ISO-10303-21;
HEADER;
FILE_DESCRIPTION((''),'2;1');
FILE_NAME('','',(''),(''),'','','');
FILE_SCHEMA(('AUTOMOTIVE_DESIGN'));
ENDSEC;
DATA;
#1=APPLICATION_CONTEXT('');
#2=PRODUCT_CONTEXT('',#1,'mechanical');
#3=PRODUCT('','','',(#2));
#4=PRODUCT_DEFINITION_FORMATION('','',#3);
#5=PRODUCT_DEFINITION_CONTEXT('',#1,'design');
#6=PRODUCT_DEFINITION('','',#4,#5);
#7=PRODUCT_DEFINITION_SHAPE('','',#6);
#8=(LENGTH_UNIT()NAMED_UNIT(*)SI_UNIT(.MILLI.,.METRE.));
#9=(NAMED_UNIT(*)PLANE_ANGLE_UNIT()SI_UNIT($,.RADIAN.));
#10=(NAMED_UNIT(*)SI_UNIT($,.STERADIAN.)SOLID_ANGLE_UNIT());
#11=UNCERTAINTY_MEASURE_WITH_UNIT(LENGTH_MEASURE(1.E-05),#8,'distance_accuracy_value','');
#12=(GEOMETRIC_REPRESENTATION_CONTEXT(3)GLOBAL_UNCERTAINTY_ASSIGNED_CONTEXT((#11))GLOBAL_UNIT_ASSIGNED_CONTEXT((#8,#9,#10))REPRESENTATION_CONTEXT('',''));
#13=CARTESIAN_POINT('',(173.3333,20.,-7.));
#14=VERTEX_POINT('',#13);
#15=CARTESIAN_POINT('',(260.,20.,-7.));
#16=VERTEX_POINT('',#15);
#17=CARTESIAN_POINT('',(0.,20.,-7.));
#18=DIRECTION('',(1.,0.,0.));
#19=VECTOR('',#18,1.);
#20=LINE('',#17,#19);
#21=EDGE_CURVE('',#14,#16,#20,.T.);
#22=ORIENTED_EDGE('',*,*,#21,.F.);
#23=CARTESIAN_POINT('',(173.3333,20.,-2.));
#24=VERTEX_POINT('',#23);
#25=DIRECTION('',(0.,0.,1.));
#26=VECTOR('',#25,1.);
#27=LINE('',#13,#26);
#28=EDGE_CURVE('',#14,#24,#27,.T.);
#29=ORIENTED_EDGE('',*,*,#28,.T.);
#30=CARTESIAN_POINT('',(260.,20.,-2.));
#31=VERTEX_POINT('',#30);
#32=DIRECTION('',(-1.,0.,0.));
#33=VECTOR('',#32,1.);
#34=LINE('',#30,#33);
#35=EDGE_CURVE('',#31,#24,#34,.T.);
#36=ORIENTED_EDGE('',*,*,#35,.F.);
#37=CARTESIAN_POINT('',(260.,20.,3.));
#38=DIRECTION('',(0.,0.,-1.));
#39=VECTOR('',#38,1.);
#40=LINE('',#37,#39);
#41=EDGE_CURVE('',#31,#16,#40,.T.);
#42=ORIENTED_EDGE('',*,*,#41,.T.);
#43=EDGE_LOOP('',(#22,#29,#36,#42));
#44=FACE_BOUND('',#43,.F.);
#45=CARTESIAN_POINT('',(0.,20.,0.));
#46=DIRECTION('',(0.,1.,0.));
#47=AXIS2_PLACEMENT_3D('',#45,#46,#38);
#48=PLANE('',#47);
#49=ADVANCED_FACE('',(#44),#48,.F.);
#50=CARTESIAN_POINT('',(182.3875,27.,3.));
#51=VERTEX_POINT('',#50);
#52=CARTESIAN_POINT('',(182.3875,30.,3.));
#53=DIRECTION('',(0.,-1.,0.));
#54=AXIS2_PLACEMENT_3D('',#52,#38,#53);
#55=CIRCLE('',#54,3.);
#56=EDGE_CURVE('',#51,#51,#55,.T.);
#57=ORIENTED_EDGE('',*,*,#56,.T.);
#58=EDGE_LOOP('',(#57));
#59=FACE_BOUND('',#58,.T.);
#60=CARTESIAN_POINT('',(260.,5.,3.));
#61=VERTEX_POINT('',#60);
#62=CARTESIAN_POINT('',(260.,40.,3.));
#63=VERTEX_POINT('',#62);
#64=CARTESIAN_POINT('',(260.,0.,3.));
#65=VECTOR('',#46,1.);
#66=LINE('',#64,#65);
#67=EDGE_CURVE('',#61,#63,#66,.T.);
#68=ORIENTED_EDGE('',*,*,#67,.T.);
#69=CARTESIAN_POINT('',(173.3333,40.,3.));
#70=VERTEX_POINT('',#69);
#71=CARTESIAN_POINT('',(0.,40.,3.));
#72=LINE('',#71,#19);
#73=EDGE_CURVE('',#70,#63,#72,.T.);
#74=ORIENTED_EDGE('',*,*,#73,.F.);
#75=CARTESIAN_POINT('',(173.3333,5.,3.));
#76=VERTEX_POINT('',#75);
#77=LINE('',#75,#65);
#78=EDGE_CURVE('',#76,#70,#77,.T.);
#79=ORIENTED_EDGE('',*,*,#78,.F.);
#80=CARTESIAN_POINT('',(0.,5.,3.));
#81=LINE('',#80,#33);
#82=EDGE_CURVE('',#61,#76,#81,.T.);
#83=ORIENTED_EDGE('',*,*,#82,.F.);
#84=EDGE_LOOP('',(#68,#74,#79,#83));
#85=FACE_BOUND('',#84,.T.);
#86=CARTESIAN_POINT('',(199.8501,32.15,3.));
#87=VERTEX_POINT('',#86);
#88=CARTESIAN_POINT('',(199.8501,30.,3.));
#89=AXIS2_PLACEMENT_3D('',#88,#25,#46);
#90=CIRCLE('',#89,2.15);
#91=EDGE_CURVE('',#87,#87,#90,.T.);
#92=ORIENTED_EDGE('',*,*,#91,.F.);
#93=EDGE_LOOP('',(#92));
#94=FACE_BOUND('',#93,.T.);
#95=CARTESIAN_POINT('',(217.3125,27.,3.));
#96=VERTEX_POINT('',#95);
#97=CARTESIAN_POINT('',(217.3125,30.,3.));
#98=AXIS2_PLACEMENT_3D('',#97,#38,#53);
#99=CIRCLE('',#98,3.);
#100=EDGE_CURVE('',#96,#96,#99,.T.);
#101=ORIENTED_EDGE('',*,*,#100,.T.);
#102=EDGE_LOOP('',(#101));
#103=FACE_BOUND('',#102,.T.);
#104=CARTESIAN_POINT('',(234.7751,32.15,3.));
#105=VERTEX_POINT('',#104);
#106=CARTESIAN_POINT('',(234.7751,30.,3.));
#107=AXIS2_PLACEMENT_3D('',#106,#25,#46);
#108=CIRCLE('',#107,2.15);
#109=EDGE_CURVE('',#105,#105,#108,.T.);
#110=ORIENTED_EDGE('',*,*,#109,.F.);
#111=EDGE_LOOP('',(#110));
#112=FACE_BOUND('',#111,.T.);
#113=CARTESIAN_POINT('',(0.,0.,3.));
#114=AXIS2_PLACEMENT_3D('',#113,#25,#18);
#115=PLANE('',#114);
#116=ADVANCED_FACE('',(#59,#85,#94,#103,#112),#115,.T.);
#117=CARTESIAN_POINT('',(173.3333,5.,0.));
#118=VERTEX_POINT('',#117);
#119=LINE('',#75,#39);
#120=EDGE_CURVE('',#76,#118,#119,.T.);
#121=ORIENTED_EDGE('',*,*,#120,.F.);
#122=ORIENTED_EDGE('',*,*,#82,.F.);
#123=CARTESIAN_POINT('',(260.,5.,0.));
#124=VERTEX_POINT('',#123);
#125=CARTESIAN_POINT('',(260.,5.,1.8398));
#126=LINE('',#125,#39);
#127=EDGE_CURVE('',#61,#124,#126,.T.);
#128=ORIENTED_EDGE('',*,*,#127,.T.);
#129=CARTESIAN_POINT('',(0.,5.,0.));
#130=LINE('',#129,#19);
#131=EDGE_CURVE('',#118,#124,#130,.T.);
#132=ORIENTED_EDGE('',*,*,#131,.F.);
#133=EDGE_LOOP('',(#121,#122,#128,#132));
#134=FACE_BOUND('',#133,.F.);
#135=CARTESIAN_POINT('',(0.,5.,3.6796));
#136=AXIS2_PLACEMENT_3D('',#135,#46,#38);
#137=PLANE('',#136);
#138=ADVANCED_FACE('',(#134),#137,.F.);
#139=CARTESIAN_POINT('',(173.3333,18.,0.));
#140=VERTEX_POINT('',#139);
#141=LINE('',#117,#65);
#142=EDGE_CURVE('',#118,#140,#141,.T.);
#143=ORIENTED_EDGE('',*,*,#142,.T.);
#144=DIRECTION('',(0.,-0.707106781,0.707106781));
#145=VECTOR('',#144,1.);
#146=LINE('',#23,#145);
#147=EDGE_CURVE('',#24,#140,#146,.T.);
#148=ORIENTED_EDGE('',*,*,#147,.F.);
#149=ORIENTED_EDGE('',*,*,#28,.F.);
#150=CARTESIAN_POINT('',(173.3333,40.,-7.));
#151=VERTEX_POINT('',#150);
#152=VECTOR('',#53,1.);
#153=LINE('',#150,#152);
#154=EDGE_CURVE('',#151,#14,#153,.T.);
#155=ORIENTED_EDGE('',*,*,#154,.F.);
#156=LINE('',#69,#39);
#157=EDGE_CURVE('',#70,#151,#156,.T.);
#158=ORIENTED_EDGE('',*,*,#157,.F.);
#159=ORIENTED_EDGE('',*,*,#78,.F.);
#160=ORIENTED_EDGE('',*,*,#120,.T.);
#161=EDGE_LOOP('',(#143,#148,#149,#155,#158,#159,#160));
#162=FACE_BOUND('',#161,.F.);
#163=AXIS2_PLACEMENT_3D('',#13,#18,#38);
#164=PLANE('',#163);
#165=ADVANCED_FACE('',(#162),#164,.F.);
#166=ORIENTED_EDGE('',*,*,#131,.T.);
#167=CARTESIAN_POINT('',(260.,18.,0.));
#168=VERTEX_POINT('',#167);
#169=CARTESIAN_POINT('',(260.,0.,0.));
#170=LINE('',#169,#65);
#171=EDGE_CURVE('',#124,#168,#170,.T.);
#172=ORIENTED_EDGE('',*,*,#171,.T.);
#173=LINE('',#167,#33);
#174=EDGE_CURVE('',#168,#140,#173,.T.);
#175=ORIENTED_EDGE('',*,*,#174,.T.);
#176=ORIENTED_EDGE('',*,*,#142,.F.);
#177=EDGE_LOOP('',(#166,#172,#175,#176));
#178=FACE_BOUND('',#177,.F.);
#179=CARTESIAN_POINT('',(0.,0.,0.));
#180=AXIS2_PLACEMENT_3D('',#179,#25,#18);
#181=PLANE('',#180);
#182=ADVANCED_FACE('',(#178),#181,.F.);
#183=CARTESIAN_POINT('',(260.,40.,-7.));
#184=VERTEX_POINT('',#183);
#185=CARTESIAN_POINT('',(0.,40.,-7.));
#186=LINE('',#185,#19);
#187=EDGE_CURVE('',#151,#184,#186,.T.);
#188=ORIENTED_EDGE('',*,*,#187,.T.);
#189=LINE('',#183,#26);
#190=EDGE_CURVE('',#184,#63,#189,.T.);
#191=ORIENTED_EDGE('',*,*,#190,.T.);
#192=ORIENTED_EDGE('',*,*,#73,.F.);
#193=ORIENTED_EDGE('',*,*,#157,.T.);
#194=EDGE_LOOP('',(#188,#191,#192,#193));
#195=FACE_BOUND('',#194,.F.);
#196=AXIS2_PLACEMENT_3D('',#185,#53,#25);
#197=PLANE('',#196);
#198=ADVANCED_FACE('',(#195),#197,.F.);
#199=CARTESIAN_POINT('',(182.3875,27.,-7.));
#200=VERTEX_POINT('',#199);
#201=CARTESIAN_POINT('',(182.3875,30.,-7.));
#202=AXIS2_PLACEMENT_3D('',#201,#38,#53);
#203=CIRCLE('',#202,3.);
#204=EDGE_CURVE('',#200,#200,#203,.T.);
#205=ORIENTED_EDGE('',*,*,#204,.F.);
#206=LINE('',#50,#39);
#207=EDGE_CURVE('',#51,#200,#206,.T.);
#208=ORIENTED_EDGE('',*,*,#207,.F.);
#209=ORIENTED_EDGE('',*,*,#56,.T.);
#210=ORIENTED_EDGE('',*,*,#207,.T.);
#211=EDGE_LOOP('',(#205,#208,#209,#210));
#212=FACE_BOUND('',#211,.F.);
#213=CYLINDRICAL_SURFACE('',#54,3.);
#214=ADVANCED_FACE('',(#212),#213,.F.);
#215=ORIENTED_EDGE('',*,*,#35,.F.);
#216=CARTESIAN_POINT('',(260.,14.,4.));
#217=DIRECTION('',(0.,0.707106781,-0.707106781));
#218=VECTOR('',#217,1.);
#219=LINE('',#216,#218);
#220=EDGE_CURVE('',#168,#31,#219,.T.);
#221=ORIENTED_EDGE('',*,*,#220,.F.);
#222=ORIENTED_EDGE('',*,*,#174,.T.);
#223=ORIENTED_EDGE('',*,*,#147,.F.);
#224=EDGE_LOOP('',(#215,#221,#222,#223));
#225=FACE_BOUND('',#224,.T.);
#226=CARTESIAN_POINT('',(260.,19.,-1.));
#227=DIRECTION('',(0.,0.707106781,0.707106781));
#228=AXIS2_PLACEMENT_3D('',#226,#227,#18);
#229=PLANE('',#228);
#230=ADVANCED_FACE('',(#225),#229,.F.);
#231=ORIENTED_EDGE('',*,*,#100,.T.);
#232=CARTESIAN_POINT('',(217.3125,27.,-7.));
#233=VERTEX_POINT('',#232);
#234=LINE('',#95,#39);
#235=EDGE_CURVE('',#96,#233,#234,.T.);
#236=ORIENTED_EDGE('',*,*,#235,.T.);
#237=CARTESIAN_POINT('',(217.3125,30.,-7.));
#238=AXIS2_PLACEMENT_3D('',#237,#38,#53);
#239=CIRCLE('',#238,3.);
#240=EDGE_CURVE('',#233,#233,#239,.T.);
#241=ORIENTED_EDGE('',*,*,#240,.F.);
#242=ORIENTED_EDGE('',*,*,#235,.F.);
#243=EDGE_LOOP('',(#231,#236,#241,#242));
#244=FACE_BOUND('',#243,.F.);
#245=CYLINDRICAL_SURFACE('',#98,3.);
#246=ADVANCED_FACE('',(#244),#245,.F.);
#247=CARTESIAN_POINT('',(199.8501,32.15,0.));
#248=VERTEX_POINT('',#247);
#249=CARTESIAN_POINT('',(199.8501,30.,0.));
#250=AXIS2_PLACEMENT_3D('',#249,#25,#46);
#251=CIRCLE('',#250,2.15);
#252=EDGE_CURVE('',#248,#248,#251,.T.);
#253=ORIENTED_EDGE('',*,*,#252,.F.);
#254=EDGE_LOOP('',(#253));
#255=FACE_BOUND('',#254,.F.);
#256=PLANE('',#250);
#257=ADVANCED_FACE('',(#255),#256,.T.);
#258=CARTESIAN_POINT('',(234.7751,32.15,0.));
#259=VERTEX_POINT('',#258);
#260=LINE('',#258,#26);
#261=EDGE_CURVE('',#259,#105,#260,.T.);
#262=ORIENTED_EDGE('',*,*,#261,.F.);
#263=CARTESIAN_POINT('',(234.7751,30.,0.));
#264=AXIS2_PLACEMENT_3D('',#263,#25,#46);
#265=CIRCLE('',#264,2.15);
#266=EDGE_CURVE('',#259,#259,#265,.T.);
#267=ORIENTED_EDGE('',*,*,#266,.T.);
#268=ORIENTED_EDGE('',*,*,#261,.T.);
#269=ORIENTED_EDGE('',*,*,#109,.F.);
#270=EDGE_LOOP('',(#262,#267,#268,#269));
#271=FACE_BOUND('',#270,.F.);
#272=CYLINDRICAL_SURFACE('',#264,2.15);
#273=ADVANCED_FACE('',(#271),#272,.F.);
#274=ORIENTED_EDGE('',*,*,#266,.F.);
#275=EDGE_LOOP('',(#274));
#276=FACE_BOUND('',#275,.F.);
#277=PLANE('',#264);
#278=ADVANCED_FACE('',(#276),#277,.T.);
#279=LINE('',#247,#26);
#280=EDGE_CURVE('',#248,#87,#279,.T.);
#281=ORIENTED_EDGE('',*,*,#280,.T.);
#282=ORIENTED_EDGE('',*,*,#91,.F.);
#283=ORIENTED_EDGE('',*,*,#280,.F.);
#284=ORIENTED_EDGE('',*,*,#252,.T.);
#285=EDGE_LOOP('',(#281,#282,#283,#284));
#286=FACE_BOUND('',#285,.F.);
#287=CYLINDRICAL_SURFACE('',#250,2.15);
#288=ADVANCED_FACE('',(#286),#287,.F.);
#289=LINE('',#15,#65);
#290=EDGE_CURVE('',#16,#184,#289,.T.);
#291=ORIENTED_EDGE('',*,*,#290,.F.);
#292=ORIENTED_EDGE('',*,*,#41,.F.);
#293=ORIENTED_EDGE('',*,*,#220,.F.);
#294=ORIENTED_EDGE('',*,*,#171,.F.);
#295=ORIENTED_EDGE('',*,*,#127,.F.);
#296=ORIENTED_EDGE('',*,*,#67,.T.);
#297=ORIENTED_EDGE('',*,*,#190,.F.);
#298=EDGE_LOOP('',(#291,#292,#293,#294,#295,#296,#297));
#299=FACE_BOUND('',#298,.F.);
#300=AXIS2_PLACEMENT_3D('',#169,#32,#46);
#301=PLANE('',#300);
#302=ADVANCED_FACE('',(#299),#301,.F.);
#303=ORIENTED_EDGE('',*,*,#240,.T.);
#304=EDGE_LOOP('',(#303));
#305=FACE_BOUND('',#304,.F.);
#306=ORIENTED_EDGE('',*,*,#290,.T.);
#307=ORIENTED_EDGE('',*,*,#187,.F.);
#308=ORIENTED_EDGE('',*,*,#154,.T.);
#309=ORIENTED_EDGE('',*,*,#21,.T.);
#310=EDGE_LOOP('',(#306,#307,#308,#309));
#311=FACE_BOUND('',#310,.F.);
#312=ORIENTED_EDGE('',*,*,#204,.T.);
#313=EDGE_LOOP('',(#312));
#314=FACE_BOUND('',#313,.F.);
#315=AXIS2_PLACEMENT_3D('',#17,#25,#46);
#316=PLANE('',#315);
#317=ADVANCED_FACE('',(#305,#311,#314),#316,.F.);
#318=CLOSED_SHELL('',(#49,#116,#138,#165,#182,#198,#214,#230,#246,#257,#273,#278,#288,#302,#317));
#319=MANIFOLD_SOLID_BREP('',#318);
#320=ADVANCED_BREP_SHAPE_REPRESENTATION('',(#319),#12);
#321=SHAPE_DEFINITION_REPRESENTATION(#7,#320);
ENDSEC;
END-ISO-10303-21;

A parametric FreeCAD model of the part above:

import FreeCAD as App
import Part
import Sketcher

V = App.Vector


def edges_at(feature, points):
    """Names of the edges that pass closest to the given points."""
    edges = feature.Shape.Edges
    near = lambda p: min(range(len(edges)), key=lambda i: edges[i].distToShape(Part.Vertex(*p))[0])
    return sorted({f"Edge{near(p) + 1}" for p in points})


def add_polygon(sketch, points):
    """Adds a closed chain of lines whose ends are joined by coincident constraints."""
    first, n = sketch.GeometryCount, len(points)
    for a, b in zip(points, points[1:] + points[:1]):
        sketch.addGeometry(Part.LineSegment(App.Vector(*a, 0), App.Vector(*b, 0)), False)
    for i in range(n):
        sketch.addConstraint(Sketcher.Constraint("Coincident", first + i, 2, first + (i + 1) % n, 1))

doc = App.newDocument("Part")
body = doc.addObject("PartDesign::Body", "Body")

# Sketch on XY plane
sketch1 = doc.addObject("Sketcher::SketchObject", "Sketch")
body.addObject(sketch1)
sketch1.AttachmentSupport = (doc.XY_Plane, [""])
sketch1.MapMode = "FlatFace"
add_polygon(sketch1, [(0, 20), (0, 0), (260, 0), (260, 20)])  # lines 0-3
sketch1.addConstraint([
    Sketcher.Constraint("Vertical", 0),
    Sketcher.Constraint("Horizontal", 1),
    Sketcher.Constraint("Vertical", 2),
    Sketcher.Constraint("Horizontal", 3),
    Sketcher.Constraint("Coincident", 0, 2, -1, 1),
    Sketcher.Constraint("DistanceX", 1, 1, 1, 2, 260.0),
    Sketcher.Constraint("DistanceY", 0, 2, 0, 1, 20.0),
])
pad1 = doc.addObject("PartDesign::Pad", "Pad")
body.addObject(pad1)
pad1.Profile = sketch1
pad1.Length = 3

# Sketch on YZ plane
sketch2 = doc.addObject("Sketcher::SketchObject", "Sketch001")
body.addObject(sketch2)
sketch2.AttachmentSupport = (doc.YZ_Plane, [""])
sketch2.MapMode = "FlatFace"
add_polygon(sketch2, [(20, -7), (20, 3), (40, 3), (40, -7)])  # lines 0-3
sketch2.addConstraint([
    Sketcher.Constraint("Vertical", 0),
    Sketcher.Constraint("Horizontal", 1),
    Sketcher.Constraint("Vertical", 2),
    Sketcher.Constraint("Horizontal", 3),
    Sketcher.Constraint("DistanceX", 1, 1, 1, 2, 20.0),
    Sketcher.Constraint("DistanceY", 0, 1, 0, 2, 10.0),
    Sketcher.Constraint("DistanceX", -1, 1, 0, 2, 20.0),
    Sketcher.Constraint("DistanceY", -1, 1, 0, 2, 3.0),
])
pad2 = doc.addObject("PartDesign::Pad", "Pad001")
body.addObject(pad2)
pad2.Profile = sketch2
pad2.Length = 260

# Sketch on XY plane
sketch3 = doc.addObject("Sketcher::SketchObject", "Sketch002")
body.addObject(sketch3)
sketch3.AttachmentSupport = (doc.XY_Plane, [""])
sketch3.MapMode = "FlatFace"
sketch3.AttachmentOffset = App.Placement(V(0, 0, 3), App.Rotation())
sketch3.addGeometry([
    Part.Circle(V(42.6875, 30, 0), V(0, 0, 1), 3),  # 0
    Part.Circle(V(77.6125, 30, 0), V(0, 0, 1), 3),  # 1
    Part.Circle(V(182.3875, 30, 0), V(0, 0, 1), 3),  # 2
    Part.Circle(V(217.3125, 30, 0), V(0, 0, 1), 3),  # 3
    Part.Circle(V(112.5375, 30, 0), V(0, 0, 1), 3),  # 4
    Part.Circle(V(147.4625, 30, 0), V(0, 0, 1), 3),  # 5
], False)
sketch3.addConstraint([
    Sketcher.Constraint("Equal", 0, 1),
    Sketcher.Constraint("Equal", 1, 2),
    Sketcher.Constraint("Equal", 2, 3),
    Sketcher.Constraint("Equal", 3, 4),
    Sketcher.Constraint("Equal", 4, 5),
    Sketcher.Constraint("Horizontal", 0, 3, 1, 3),
    Sketcher.Constraint("Horizontal", 1, 3, 2, 3),
    Sketcher.Constraint("Horizontal", 2, 3, 3, 3),
    Sketcher.Constraint("Horizontal", 3, 3, 4, 3),
    Sketcher.Constraint("Horizontal", 4, 3, 5, 3),
    Sketcher.Constraint("Diameter", 0, 6.0),
    Sketcher.Constraint("DistanceY", -1, 1, 0, 3, 30.0),
    Sketcher.Constraint("DistanceX", 0, 3, 2, 3, 139.7),
    Sketcher.Constraint("DistanceX", 1, 3, 3, 3, 139.7),
    Sketcher.Constraint("DistanceX", 0, 3, 4, 3, 69.85),
    Sketcher.Constraint("DistanceX", 5, 3, 3, 3, 69.85),
    Sketcher.Constraint("DistanceX", 0, 3, 1, 3, 34.925),
    Sketcher.Constraint("DistanceX", -1, 1, 0, 3, 42.6875),
])
doc.recompute()
hole = doc.addObject("PartDesign::Hole", "Hole")
body.addObject(hole)
hole.Profile = sketch3
hole.ThreadType = "None"
hole.Diameter = 6
hole.DepthType = "ThroughAll"

# Sketch on XY plane
sketch4 = doc.addObject("Sketcher::SketchObject", "Sketch003")
body.addObject(sketch4)
sketch4.AttachmentSupport = (doc.XY_Plane, [""])
sketch4.MapMode = "FlatFace"
sketch4.addGeometry(Part.Circle(V(25.2251, 30, 0), V(0, 0, 1), 2.15), False)
sketch4.addConstraint([
    Sketcher.Constraint("Diameter", 0, 4.3),
    Sketcher.Constraint("DistanceY", -1, 1, 0, 3, 30.0),
    Sketcher.Constraint("DistanceX", -1, 1, 0, 3, 25.225),
])
doc.recompute()
hole2 = doc.addObject("PartDesign::Hole", "Hole001")
body.addObject(hole2)
hole2.Profile = sketch4
hole2.ThreadType = "None"
hole2.Diameter = 4.3
hole2.DepthType = "Dimension"
hole2.Depth = 6
hole2.DrillPoint = "Flat"
hole2.Reversed = True
doc.recompute()

linearpattern = doc.addObject("PartDesign::LinearPattern", "LinearPattern")
body.addObject(linearpattern)
linearpattern.Originals = [hole2]
linearpattern.Direction = (doc.X_Axis, [""])
linearpattern.Mode = "offset"
linearpattern.Offset = 34.925
linearpattern.Occurrences = 7
body.Tip = linearpattern
doc.recompute()

chamfer = doc.addObject("PartDesign::Chamfer", "Chamfer")
body.addObject(chamfer)
chamfer.Base = (linearpattern, edges_at(linearpattern, [(130, 20, 0)]))
chamfer.Size = 2

# Sketch on YZ plane
sketch5 = doc.addObject("Sketcher::SketchObject", "Sketch004")
body.addObject(sketch5)
sketch5.AttachmentSupport = (doc.YZ_Plane, [""])
sketch5.MapMode = "FlatFace"
add_polygon(sketch5, [(5, 0), (0, 0), (0, 3.6796), (5, 3.6796)])  # lines 0-3
sketch5.addConstraint([
    Sketcher.Constraint("Horizontal", 0),
    Sketcher.Constraint("Vertical", 1),
    Sketcher.Constraint("Horizontal", 2),
    Sketcher.Constraint("Vertical", 3),
    Sketcher.Constraint("Coincident", 0, 2, -1, 1),
    Sketcher.Constraint("DistanceX", 0, 2, 0, 1, 5.0),
    Sketcher.Constraint("DistanceY", 1, 1, 1, 2, 3.6796),
])
pocket1 = doc.addObject("PartDesign::Pocket", "Pocket")
body.addObject(pocket1)
pocket1.Profile = sketch5
pocket1.Type = "ThroughAll"
pocket1.Reversed = True

# Sketch on YZ plane
sketch6 = doc.addObject("Sketcher::SketchObject", "Sketch005")
body.addObject(sketch6)
sketch6.AttachmentSupport = (doc.YZ_Plane, [""])
sketch6.MapMode = "FlatFace"
sketch6.AttachmentOffset = App.Placement(V(0, 0, 173.3333), App.Rotation())
add_polygon(sketch6, [(40, 3), (5, 3), (5, 0), (18, 0), (20, -2), (20, -7), (40, -7)])  # lines 0-6
sketch6.addConstraint([
    Sketcher.Constraint("Horizontal", 0),
    Sketcher.Constraint("Vertical", 1),
    Sketcher.Constraint("Horizontal", 2),
    Sketcher.Constraint("Vertical", 4),
    Sketcher.Constraint("Horizontal", 5),
    Sketcher.Constraint("Vertical", 6),
    Sketcher.Constraint("PointOnObject", 1, 2, -1),
    Sketcher.Constraint("DistanceX", 0, 2, 0, 1, 35.0),
    Sketcher.Constraint("DistanceX", 2, 1, 2, 2, 13.0),
    Sketcher.Constraint("DistanceX", 5, 1, 5, 2, 20.0),
    Sketcher.Constraint("DistanceY", 1, 2, 1, 1, 3.0),
    Sketcher.Constraint("DistanceY", 4, 2, 4, 1, 5.0),
    Sketcher.Constraint("DistanceY", 6, 1, 6, 2, 10.0),
    Sketcher.Constraint("DistanceX", -1, 1, 0, 2, 5.0),
])
pocket2 = doc.addObject("PartDesign::Pocket", "Pocket001")
body.addObject(pocket2)
pocket2.Profile = sketch6
pocket2.Type = "ThroughAll"

doc.recompute()
